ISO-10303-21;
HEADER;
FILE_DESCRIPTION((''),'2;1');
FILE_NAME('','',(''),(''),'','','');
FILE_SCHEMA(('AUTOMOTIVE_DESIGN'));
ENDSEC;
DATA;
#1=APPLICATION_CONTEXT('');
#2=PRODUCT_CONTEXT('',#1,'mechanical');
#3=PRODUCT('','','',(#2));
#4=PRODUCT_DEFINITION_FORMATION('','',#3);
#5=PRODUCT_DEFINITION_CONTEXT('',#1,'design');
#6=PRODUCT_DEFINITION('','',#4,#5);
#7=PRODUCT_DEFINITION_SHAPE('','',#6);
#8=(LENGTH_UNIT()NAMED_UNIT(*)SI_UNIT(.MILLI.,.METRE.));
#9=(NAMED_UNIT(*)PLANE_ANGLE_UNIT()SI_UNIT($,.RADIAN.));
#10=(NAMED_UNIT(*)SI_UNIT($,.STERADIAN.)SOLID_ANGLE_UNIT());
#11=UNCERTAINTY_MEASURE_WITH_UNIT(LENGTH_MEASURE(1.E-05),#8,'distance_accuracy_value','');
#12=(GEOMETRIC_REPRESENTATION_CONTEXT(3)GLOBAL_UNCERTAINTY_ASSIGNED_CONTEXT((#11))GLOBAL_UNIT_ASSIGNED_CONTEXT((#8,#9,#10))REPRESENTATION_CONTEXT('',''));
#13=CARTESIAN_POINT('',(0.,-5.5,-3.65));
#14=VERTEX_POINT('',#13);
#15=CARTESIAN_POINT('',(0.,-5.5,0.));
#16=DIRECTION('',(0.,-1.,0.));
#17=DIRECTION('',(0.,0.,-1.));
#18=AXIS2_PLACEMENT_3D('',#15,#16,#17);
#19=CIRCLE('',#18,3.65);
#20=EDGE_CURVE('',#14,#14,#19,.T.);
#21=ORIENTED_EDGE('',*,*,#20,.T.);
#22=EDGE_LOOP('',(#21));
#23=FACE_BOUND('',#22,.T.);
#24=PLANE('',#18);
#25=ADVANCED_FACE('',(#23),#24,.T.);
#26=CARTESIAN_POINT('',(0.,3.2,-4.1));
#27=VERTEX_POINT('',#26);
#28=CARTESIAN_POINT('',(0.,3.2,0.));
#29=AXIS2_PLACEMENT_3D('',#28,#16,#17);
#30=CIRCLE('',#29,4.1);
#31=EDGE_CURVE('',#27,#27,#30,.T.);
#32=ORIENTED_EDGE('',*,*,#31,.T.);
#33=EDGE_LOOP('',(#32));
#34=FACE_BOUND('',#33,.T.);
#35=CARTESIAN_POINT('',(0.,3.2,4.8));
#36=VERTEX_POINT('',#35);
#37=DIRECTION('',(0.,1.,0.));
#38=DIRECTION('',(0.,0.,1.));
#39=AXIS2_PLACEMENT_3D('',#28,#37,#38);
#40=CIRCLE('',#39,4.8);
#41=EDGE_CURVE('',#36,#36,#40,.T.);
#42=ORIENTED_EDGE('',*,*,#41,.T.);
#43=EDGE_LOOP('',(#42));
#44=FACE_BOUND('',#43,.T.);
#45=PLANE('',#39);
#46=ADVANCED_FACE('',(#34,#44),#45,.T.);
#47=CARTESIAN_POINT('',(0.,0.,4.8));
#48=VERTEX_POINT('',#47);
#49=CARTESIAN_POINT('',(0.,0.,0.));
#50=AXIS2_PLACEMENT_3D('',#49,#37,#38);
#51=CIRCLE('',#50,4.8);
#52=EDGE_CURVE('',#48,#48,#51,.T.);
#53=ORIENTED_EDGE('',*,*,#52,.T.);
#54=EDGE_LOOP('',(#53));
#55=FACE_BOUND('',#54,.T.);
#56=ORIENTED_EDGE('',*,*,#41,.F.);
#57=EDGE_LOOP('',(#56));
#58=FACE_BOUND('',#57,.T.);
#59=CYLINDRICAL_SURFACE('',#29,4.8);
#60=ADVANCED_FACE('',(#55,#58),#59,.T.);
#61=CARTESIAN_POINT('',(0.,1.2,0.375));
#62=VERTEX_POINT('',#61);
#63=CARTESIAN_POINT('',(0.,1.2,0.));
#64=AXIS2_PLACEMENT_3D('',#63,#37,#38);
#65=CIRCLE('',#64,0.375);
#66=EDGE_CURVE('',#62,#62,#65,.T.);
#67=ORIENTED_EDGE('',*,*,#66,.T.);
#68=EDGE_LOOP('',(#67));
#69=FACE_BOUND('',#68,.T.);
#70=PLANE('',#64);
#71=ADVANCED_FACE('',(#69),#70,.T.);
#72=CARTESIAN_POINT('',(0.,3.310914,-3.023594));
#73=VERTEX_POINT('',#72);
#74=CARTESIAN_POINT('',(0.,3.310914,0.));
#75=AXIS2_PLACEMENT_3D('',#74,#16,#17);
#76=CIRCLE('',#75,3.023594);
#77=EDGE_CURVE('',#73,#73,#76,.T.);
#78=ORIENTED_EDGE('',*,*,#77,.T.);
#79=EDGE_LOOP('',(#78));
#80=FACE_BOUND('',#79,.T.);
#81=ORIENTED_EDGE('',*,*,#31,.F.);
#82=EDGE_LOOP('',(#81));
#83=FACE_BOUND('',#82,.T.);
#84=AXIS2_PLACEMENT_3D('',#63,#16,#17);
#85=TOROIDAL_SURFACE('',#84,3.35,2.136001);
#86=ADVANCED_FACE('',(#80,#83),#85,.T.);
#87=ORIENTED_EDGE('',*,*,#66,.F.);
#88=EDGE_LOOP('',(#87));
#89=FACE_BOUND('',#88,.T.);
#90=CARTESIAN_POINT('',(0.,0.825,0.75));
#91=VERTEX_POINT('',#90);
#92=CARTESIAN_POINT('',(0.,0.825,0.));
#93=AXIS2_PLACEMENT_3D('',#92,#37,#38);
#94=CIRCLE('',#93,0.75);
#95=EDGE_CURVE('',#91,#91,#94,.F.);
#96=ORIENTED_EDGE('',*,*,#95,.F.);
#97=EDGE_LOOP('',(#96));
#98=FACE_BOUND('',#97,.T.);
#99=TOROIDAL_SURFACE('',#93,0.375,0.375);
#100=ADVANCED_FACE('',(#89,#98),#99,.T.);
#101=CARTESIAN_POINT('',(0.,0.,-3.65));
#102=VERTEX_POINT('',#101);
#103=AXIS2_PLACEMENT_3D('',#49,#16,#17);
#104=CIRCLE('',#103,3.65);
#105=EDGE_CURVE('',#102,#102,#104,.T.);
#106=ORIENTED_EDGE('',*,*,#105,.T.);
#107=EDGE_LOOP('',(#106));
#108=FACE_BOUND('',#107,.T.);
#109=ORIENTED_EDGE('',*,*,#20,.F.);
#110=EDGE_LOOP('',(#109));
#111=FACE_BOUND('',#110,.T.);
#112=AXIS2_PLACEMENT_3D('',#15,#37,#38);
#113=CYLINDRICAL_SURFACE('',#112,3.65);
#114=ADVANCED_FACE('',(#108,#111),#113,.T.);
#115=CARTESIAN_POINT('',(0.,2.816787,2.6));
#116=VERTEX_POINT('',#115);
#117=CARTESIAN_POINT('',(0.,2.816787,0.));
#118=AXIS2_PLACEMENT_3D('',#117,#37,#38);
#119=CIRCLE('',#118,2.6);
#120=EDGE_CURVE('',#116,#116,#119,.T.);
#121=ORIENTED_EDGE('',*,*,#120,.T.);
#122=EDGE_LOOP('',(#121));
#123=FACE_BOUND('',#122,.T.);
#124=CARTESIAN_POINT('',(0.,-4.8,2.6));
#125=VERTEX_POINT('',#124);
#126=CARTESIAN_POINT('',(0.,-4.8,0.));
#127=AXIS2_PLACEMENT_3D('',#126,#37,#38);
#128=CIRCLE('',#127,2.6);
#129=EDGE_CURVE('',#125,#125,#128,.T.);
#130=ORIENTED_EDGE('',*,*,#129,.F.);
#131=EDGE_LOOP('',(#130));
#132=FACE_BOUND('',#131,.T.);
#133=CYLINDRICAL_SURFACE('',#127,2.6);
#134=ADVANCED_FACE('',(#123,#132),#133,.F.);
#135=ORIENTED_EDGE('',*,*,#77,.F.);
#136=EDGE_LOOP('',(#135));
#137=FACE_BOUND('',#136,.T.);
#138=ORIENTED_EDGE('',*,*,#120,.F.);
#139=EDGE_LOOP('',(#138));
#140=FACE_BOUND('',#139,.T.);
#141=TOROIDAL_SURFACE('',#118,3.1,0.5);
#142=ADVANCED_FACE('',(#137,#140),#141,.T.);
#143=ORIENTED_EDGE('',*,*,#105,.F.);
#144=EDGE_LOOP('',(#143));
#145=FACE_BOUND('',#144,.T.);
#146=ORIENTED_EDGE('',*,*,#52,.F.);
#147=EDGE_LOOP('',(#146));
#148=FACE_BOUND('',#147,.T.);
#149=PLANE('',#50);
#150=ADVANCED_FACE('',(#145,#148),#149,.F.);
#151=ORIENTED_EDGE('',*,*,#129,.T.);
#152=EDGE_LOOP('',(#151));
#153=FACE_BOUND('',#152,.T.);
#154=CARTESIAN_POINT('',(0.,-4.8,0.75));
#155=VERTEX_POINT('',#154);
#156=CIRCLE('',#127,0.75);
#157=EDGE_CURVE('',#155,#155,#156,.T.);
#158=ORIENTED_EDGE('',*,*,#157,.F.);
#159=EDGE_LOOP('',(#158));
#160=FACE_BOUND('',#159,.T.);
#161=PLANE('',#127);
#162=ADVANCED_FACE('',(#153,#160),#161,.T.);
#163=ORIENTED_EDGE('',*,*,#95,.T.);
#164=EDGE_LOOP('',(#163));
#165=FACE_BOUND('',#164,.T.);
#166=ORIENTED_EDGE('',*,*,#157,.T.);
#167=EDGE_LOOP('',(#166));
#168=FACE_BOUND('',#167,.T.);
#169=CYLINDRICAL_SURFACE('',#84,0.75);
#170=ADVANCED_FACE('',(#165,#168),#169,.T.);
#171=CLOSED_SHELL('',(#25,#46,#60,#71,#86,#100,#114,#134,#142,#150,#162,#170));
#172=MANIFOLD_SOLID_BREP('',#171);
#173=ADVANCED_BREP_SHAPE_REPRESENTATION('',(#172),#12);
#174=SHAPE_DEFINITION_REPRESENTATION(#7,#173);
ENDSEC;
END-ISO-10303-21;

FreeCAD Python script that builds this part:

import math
import FreeCAD as App
import Part
import Sketcher


def edges_at(feature, points):
    """Names of the edges that pass closest to the given points."""
    edges = feature.Shape.Edges
    near = lambda p: min(range(len(edges)), key=lambda i: edges[i].distToShape(Part.Vertex(*p))[0])
    return sorted({f"Edge{near(p) + 1}" for p in points})

doc = App.newDocument("Part")
body = doc.addObject("PartDesign::Body", "Body")

# Sketch on XZ plane
sketch1 = body.newObject("Sketcher::SketchObject", "Sketch")
sketch1.AttachmentSupport = (doc.getObject("XZ_Plane"), [""])
sketch1.MapMode = "FlatFace"
sketch1.addGeometry(Part.Circle(App.Vector(0, 0, 0), App.Vector(0, 0, 1), 4.8), False)
sketch1.addConstraint(Sketcher.Constraint("Coincident", 0, 3, -1, 1))
sketch1.addConstraint(Sketcher.Constraint("Diameter", 0, 9.6))
pad1 = body.newObject("PartDesign::Pad", "Pad")
pad1.Profile = sketch1
pad1.Length = 3.2
pad1.Reversed = True

# Sketch on XZ plane
sketch2 = body.newObject("Sketcher::SketchObject", "Sketch001")
sketch2.AttachmentSupport = (doc.getObject("XZ_Plane"), [""])
sketch2.MapMode = "FlatFace"
sketch2.addGeometry(Part.Circle(App.Vector(0, 0, 0), App.Vector(0, 0, 1), 3.6), False)
sketch2.addConstraint(Sketcher.Constraint("Coincident", 0, 3, -1, 1))
sketch2.addConstraint(Sketcher.Constraint("Diameter", 0, 7.3))
pad2 = body.newObject("PartDesign::Pad", "Pad001")
pad2.Profile = sketch2
pad2.Length = 5.5

# Sketch on XZ plane
sketch3 = body.newObject("Sketcher::SketchObject", "Sketch002")
sketch3.AttachmentSupport = (doc.getObject("XZ_Plane"), [""])
sketch3.MapMode = "FlatFace"
sketch3.AttachmentOffset = App.Placement(App.Vector(0, 0, -3.2), App.Rotation())
sketch3.addGeometry(Part.Circle(App.Vector(0, 0, 0), App.Vector(0, 0, 1), 2.6), False)
sketch3.addConstraint(Sketcher.Constraint("Coincident", 0, 3, -1, 1))
sketch3.addConstraint(Sketcher.Constraint("Diameter", 0, 5.2))
pocket1 = body.newObject("PartDesign::Pocket", "Pocket")
pocket1.Profile = sketch3
pocket1.Length = 8
pocket1.Reversed = True

# Sketch on XY plane
sketch4 = body.newObject("Sketcher::SketchObject", "Sketch003")
sketch4.AttachmentSupport = (doc.getObject("XY_Plane"), [""])
sketch4.MapMode = "FlatFace"
sketch4.addGeometry(Part.LineSegment(App.Vector(-4.1, 3.2, 0), App.Vector(-2.6, 3.2, 0)), False)
sketch4.addGeometry(Part.ArcOfCircle(Part.Circle(App.Vector(-3.4, 1.2, 0), App.Vector(0, 0, 1), 2.1), math.radians(69), math.radians(111)), False)
sketch4.addConstraint(Sketcher.Constraint("Coincident", 0, 1, 1, 2))
sketch4.addConstraint(Sketcher.Constraint("Coincident", 1, 1, 0, 2))
sketch4.addConstraint(Sketcher.Constraint("Horizontal", 0))
sketch4.addConstraint(Sketcher.Constraint("DistanceX", 0, 1, 0, 2, 1.5))
sketch4.addConstraint(Sketcher.Constraint("Radius", 1, 2.136001))
sketch4.addConstraint(Sketcher.Constraint("DistanceY", -1, 1, 1, 3, 1.2))
sketch4.addConstraint(Sketcher.Constraint("DistanceX", 0, 1, -1, 1, 4.1))
revolution = body.newObject("PartDesign::Revolution", "Revolution")
revolution.Profile = sketch4
revolution.ReferenceAxis = (sketch4, ["V_Axis"])
revolution.Angle = 360
doc.recompute()

fillet = body.newObject("PartDesign::Fillet", "Fillet")
fillet.Base = (revolution, edges_at(revolution, [(2.6, 3.2, 0)]))
fillet.Radius = 0.5

# Sketch on XZ plane
sketch5 = body.newObject("Sketcher::SketchObject", "Sketch004")
sketch5.AttachmentSupport = (doc.getObject("XZ_Plane"), [""])
sketch5.MapMode = "FlatFace"
sketch5.AttachmentOffset = App.Placement(App.Vector(0, 0, 4.8), App.Rotation())
sketch5.addGeometry(Part.Circle(App.Vector(0, 0, 0), App.Vector(0, 0, 1), 0.8), False)
sketch5.addConstraint(Sketcher.Constraint("Coincident", 0, 3, -1, 1))
sketch5.addConstraint(Sketcher.Constraint("Diameter", 0, 1.5))
pad3 = body.newObject("PartDesign::Pad", "Pad002")
pad3.Profile = sketch5
pad3.Length = 6
pad3.Reversed = True
doc.recompute()

fillet2 = body.newObject("PartDesign::Fillet", "Fillet001")
fillet2.Base = (pad3, edges_at(pad3, [(0, 1.2, -0.75)]))
fillet2.Radius = 0.375

doc.recompute()
